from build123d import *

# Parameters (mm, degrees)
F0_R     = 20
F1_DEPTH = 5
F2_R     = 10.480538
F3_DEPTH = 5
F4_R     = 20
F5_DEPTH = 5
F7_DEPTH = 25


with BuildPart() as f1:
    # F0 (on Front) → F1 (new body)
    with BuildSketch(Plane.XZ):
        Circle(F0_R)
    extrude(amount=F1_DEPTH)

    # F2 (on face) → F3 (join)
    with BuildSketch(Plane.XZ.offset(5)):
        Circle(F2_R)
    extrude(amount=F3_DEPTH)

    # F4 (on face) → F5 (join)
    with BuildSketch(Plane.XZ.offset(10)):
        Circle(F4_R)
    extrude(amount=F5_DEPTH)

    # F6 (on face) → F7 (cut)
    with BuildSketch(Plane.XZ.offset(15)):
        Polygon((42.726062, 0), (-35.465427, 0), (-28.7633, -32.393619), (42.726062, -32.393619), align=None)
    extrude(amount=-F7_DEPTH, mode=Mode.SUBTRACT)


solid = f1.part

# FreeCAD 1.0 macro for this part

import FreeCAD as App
import Part
import Sketcher
from FreeCAD import Vector
Q = App.Units.Quantity

doc = App.newDocument("Part")
params = doc.addObject("Spreadsheet::Sheet", "Params")
for row, (alias, value) in enumerate([
    ("sketch1_diameter", "40 mm"),
    ("pad1_length", "5 mm"),
    ("pad2_length", "5 mm"),
    ("sketch3_diameter", "40 mm"),
    ("pad3_length", "5 mm"),
    ("pocket1_length", "25 mm"),
], start=1):
    params.set(f"A{row}", alias)
    params.set(f"B{row}", "=" + value)
    params.setAlias(f"B{row}", alias)

body = doc.addObject("PartDesign::Body", "Body")

sketch1 = doc.addObject("Sketcher::SketchObject", "Sketch")
body.addObject(sketch1)
sketch1.AttachmentSupport = (doc.XZ_Plane, [""])
sketch1.MapMode = "FlatFace"
sketch1.addGeometry(Part.Circle(Vector(0, 0, 0), Vector(0, 0, 1), 20), False)
sketch1.addConstraint([
    Sketcher.Constraint("Coincident", 0, 3, -1, 1),
    Sketcher.Constraint("Diameter", 0, Q("40 mm")),
])
sketch1.setExpression("Constraints[1]", "Params.sketch1_diameter")
pad1 = doc.addObject("PartDesign::Pad", "Pad")
body.addObject(pad1)
pad1.Profile = sketch1
pad1.setExpression("Length", "Params.pad1_length")

sketch2 = doc.addObject("Sketcher::SketchObject", "Sketch001")
body.addObject(sketch2)
sketch2.AttachmentSupport = (doc.XZ_Plane, [""])
sketch2.MapMode = "FlatFace"
sketch2.AttachmentOffset = App.Placement(Vector(0, 0, 5), App.Rotation())
sketch2.addGeometry(Part.Circle(Vector(0, 0, 0), Vector(0, 0, 1), 10), False)
sketch2.addConstraint([
    Sketcher.Constraint("Coincident", 0, 3, -1, 1),
    Sketcher.Constraint("Diameter", 0, Q("20.961076 mm")),
])
pad2 = doc.addObject("PartDesign::Pad", "Pad001")
body.addObject(pad2)
pad2.Profile = sketch2
pad2.setExpression("Length", "Params.pad2_length")

sketch3 = doc.addObject("Sketcher::SketchObject", "Sketch002")
body.addObject(sketch3)
sketch3.AttachmentSupport = (doc.XZ_Plane, [""])
sketch3.MapMode = "FlatFace"
sketch3.AttachmentOffset = App.Placement(Vector(0, 0, 10), App.Rotation())
sketch3.addGeometry(Part.Circle(Vector(0, 0, 0), Vector(0, 0, 1), 20), False)
sketch3.addConstraint([
    Sketcher.Constraint("Coincident", 0, 3, -1, 1),
    Sketcher.Constraint("Diameter", 0, Q("40 mm")),
])
sketch3.setExpression("Constraints[1]", "Params.sketch3_diameter")
pad3 = doc.addObject("PartDesign::Pad", "Pad002")
body.addObject(pad3)
pad3.Profile = sketch3
pad3.setExpression("Length", "Params.pad3_length")

sketch4 = doc.addObject("Sketcher::SketchObject", "Sketch003")
body.addObject(sketch4)
sketch4.AttachmentSupport = (doc.XZ_Plane, [""])
sketch4.MapMode = "FlatFace"
sketch4.AttachmentOffset = App.Placement(Vector(0, 0, 15), App.Rotation())
sketch4.addGeometry([
    Part.LineSegment(Vector(43, 0, 0), Vector(-35, 0, 0)),
    Part.LineSegment(Vector(-35, 0, 0), Vector(-29, -32, 0)),
    Part.LineSegment(Vector(-29, -32, 0), Vector(43, -32, 0)),
    Part.LineSegment(Vector(43, -32, 0), Vector(43, 0, 0)),
], False)
sketch4.addConstraint([
    Sketcher.Constraint("Coincident", 0, 2, 1, 1),
    Sketcher.Constraint("Coincident", 1, 2, 2, 1),
    Sketcher.Constraint("Coincident", 2, 2, 3, 1),
    Sketcher.Constraint("Coincident", 3, 2, 0, 1),
    Sketcher.Constraint("Horizontal", 0),
    Sketcher.Constraint("Horizontal", 2),
    Sketcher.Constraint("Vertical", 3),
    Sketcher.Constraint("PointOnObject", 0, 2, -1),
    Sketcher.Constraint("DistanceX", 0, 2, 0, 1, Q("78.191489 mm")),
    Sketcher.Constraint("DistanceX", 2, 1, 2, 2, Q("71.489362 mm")),
    Sketcher.Constraint("DistanceY", 3, 1, 3, 2, Q("32.393619 mm")),
    Sketcher.Constraint("DistanceX", 1, 2, -1, 1, Q("28.7633 mm")),
])
pocket1 = doc.addObject("PartDesign::Pocket", "Pocket")
body.addObject(pocket1)
pocket1.Profile = sketch4
pocket1.setExpression("Length", "Params.pocket1_length")

doc.recompute()
